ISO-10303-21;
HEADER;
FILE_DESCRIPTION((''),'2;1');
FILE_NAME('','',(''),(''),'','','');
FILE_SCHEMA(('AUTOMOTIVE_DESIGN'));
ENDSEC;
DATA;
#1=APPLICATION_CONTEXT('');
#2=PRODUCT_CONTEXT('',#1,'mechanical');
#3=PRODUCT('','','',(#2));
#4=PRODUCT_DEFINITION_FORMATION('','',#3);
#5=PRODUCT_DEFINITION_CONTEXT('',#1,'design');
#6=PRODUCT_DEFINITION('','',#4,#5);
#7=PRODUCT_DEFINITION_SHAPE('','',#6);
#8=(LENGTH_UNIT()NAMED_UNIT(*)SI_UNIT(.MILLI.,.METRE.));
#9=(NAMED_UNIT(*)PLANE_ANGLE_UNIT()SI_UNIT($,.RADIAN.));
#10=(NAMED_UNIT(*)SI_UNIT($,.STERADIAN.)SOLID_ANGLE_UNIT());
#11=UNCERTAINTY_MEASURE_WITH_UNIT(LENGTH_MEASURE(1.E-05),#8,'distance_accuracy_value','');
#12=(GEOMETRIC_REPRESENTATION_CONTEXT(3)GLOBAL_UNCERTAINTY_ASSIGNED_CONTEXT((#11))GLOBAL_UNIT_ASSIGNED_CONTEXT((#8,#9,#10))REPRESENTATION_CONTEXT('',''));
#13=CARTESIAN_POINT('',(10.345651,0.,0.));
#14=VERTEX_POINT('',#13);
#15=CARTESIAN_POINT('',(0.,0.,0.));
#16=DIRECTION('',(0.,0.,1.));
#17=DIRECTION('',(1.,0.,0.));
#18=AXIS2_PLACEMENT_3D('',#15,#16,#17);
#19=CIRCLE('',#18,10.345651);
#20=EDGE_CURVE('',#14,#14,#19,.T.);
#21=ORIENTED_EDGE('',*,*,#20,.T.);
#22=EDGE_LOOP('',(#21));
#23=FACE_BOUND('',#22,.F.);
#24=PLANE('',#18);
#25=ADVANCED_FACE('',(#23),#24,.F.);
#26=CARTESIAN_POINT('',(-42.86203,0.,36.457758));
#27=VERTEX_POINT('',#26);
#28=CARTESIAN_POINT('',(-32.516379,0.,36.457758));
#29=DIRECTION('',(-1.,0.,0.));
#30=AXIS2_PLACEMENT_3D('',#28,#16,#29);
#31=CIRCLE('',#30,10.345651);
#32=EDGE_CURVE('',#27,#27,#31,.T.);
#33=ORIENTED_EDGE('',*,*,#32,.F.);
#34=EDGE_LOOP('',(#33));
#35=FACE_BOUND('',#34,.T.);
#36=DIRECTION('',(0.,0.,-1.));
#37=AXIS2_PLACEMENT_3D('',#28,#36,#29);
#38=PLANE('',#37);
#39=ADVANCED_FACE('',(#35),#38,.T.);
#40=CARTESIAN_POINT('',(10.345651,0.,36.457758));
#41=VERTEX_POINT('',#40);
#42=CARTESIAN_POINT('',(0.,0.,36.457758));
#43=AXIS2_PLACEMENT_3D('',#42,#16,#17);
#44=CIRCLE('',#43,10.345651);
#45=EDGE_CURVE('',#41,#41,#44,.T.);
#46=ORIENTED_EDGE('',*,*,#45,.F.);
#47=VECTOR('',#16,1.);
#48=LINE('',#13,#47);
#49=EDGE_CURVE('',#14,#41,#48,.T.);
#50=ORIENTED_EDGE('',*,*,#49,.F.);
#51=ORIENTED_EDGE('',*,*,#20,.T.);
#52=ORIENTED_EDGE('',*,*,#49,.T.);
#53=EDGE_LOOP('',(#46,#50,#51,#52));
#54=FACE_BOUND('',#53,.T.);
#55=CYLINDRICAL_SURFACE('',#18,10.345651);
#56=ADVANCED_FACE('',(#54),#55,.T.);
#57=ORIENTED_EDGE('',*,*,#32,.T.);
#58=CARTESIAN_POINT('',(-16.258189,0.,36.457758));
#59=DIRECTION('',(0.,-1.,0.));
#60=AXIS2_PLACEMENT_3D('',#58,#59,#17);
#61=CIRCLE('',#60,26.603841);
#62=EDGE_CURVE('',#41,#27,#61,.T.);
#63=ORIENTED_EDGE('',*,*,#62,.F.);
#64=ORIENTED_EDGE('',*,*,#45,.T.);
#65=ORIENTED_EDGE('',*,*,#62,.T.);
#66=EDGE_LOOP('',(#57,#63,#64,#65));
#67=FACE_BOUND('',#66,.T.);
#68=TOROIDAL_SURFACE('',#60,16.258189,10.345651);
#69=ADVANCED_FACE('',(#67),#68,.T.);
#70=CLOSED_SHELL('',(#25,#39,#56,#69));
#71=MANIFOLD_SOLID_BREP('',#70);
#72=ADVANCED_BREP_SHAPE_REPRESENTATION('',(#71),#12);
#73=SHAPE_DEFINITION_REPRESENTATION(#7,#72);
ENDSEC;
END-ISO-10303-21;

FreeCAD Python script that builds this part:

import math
import FreeCAD as App
import Part
import Sketcher

doc = App.newDocument("Part")
body = doc.addObject("PartDesign::Body", "Body")

sketch1 = doc.addObject("Sketcher::SketchObject", "Sketch")
body.addObject(sketch1)
sketch1.AttachmentSupport = (doc.XY_Plane, [""])
sketch1.MapMode = "FlatFace"
sketch1.addGeometry(Part.Circle(App.Vector(0, 0, 0), App.Vector(0, 0, 1), 10), False)
sketch1.addConstraint([
    Sketcher.Constraint("Coincident", 0, 3, -1, 1),
    Sketcher.Constraint("Diameter", 0, 20.691303),
])

sketch2 = doc.addObject("Sketcher::SketchObject", "Sketch001")
body.addObject(sketch2)
sketch2.AttachmentSupport = (doc.XZ_Plane, [""])
sketch2.MapMode = "FlatFace"
sketch2.addGeometry([
    Part.LineSegment(App.Vector(0, 0, 0), App.Vector(0, 36, 0)),
    Part.ArcOfCircle(Part.Circle(App.Vector(-16, 36, 0), App.Vector(0, 0, 1), 16), math.radians(0), math.radians(180)),
], False)
sketch2.addConstraint([
    Sketcher.Constraint("Tangent", 0, 2, 1, 1),
    Sketcher.Constraint("Vertical", 0),
    Sketcher.Constraint("Coincident", 0, 1, -1, 1),
    Sketcher.Constraint("Horizontal", 0, 2, 1, 2),
    Sketcher.Constraint("Radius", 1, 16.258189),
    Sketcher.Constraint("DistanceY", 0, 1, 0, 2, 36.457758),
])
doc.recompute()

additivepipe = doc.addObject("PartDesign::AdditivePipe", "AdditivePipe")
body.addObject(additivepipe)
additivepipe.Profile = sketch1
additivepipe.Spine = (sketch2, ["Edge1", "Edge2"])

doc.recompute()
